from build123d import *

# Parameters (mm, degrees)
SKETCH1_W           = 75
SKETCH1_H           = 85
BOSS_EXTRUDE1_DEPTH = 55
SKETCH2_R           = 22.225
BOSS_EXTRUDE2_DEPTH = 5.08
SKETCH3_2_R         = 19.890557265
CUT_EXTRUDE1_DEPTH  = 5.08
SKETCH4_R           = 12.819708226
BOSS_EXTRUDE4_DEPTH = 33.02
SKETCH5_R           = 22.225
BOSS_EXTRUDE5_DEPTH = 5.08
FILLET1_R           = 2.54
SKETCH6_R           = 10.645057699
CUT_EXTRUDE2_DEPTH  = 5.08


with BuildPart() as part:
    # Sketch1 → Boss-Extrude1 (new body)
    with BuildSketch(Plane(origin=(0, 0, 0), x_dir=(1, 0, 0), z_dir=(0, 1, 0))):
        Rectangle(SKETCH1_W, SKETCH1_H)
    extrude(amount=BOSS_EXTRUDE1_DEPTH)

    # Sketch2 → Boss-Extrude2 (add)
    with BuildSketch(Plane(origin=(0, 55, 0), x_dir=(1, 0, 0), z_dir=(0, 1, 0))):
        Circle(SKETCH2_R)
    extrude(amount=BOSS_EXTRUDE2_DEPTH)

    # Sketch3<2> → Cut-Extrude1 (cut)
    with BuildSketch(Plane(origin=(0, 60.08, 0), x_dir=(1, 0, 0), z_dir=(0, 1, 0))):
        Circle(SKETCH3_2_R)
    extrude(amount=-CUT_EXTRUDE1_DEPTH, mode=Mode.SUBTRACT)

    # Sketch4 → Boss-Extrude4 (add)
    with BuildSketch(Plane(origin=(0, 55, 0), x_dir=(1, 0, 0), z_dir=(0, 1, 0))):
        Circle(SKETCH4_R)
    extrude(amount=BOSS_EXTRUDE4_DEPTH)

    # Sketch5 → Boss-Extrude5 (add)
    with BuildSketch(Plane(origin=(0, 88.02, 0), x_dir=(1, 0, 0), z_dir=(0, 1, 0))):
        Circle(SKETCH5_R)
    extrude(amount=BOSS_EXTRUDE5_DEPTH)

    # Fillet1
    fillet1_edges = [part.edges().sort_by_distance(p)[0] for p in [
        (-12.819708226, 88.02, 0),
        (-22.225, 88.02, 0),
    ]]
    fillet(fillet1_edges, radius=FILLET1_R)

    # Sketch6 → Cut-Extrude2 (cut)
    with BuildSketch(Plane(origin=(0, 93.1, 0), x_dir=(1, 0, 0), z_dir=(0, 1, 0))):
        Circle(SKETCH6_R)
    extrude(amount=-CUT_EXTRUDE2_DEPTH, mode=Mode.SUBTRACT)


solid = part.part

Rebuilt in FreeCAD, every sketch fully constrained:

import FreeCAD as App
import Part
import Sketcher
from FreeCAD import Vector
Q = App.Units.Quantity


def edges_at(feature, points):
    """Names of the edges that pass closest to the given points."""
    edges = feature.Shape.Edges
    near = lambda p: min(range(len(edges)), key=lambda i: edges[i].distToShape(Part.Vertex(*p))[0])
    return sorted({f"Edge{near(p) + 1}" for p in points})

doc = App.newDocument("Part")
body = doc.addObject("PartDesign::Body", "Body")

# Sketch on XZ plane
sketch1 = body.newObject("Sketcher::SketchObject", "Sketch")
sketch1.AttachmentSupport = (doc.getObject("XZ_Plane"), [""])
sketch1.MapMode = "FlatFace"
sketch1.addGeometry(Part.LineSegment(Vector(-37.5, -42.5, 0), Vector(-37.5, 42.5, 0)), False)
sketch1.addGeometry(Part.LineSegment(Vector(-37.5, 42.5, 0), Vector(37.5, 42.5, 0)), False)
sketch1.addGeometry(Part.LineSegment(Vector(37.5, 42.5, 0), Vector(37.5, -42.5, 0)), False)
sketch1.addGeometry(Part.LineSegment(Vector(37.5, -42.5, 0), Vector(-37.5, -42.5, 0)), False)
sketch1.addConstraint(Sketcher.Constraint("Coincident", 0, 2, 1, 1))
sketch1.addConstraint(Sketcher.Constraint("Coincident", 1, 2, 2, 1))
sketch1.addConstraint(Sketcher.Constraint("Coincident", 2, 2, 3, 1))
sketch1.addConstraint(Sketcher.Constraint("Coincident", 3, 2, 0, 1))
sketch1.addConstraint(Sketcher.Constraint("Vertical", 0))
sketch1.addConstraint(Sketcher.Constraint("Horizontal", 1))
sketch1.addConstraint(Sketcher.Constraint("Vertical", 2))
sketch1.addConstraint(Sketcher.Constraint("Horizontal", 3))
sketch1.addConstraint(Sketcher.Constraint("Symmetric", 0, 2, 2, 2, -1, 1))
sketch1.addConstraint(Sketcher.Constraint("DistanceX", 1, 1, 1, 2, Q("75 mm")))
sketch1.addConstraint(Sketcher.Constraint("DistanceY", 0, 1, 0, 2, Q("85 mm")))
pad1 = body.newObject("PartDesign::Pad", "Pad")
pad1.Profile = sketch1
pad1.Length = 55
pad1.Reversed = True

# Sketch on XZ plane
sketch2 = body.newObject("Sketcher::SketchObject", "Sketch001")
sketch2.AttachmentSupport = (doc.getObject("XZ_Plane"), [""])
sketch2.MapMode = "FlatFace"
sketch2.AttachmentOffset = App.Placement(Vector(0, 0, -55), App.Rotation())
sketch2.addGeometry(Part.Circle(Vector(0, 0, 0), Vector(0, 0, 1), 22.225), False)
sketch2.addConstraint(Sketcher.Constraint("Coincident", 0, 3, -1, 1))
sketch2.addConstraint(Sketcher.Constraint("Diameter", 0, Q("1.75 in")))
pad2 = body.newObject("PartDesign::Pad", "Pad001")
pad2.Profile = sketch2
pad2.Length = Q("0.2 in")
pad2.Reversed = True

# Sketch on XZ plane
sketch3 = body.newObject("Sketcher::SketchObject", "Sketch002")
sketch3.AttachmentSupport = (doc.getObject("XZ_Plane"), [""])
sketch3.MapMode = "FlatFace"
sketch3.AttachmentOffset = App.Placement(Vector(0, 0, -60.08), App.Rotation())
sketch3.addGeometry(Part.Circle(Vector(0, 0, 0), Vector(0, 0, 1), 19.890557), False)
sketch3.addConstraint(Sketcher.Constraint("Coincident", 0, 3, -1, 1))
sketch3.addConstraint(Sketcher.Constraint("Diameter", 0, Q("39.781115 mm")))
pocket1 = body.newObject("PartDesign::Pocket", "Pocket")
pocket1.Profile = sketch3
pocket1.Length = Q("0.2 in")
pocket1.Reversed = True

# Sketch on XZ plane
sketch4 = body.newObject("Sketcher::SketchObject", "Sketch003")
sketch4.AttachmentSupport = (doc.getObject("XZ_Plane"), [""])
sketch4.MapMode = "FlatFace"
sketch4.AttachmentOffset = App.Placement(Vector(0, 0, -55), App.Rotation())
sketch4.addGeometry(Part.Circle(Vector(0, 0, 0), Vector(0, 0, 1), 12.819708), False)
sketch4.addConstraint(Sketcher.Constraint("Coincident", 0, 3, -1, 1))
sketch4.addConstraint(Sketcher.Constraint("Diameter", 0, Q("25.639416 mm")))
pad3 = body.newObject("PartDesign::Pad", "Pad002")
pad3.Profile = sketch4
pad3.Length = Q("1.3 in")
pad3.Reversed = True

# Sketch on XZ plane
sketch5 = body.newObject("Sketcher::SketchObject", "Sketch004")
sketch5.AttachmentSupport = (doc.getObject("XZ_Plane"), [""])
sketch5.MapMode = "FlatFace"
sketch5.AttachmentOffset = App.Placement(Vector(0, 0, -88.02), App.Rotation())
sketch5.addGeometry(Part.Circle(Vector(0, 0, 0), Vector(0, 0, 1), 22.225), False)
sketch5.addConstraint(Sketcher.Constraint("Coincident", 0, 3, -1, 1))
sketch5.addConstraint(Sketcher.Constraint("Diameter", 0, Q("1.75 in")))
pad4 = body.newObject("PartDesign::Pad", "Pad003")
pad4.Profile = sketch5
pad4.Length = Q("0.2 in")
pad4.Reversed = True
doc.recompute()

fillet = body.newObject("PartDesign::Fillet", "Fillet")
fillet.Base = (pad4, edges_at(pad4, [(-12.82, 88.02, 0), (-22.225, 88.02, 0)]))
fillet.Radius = Q("0.1 in")

# Sketch on XZ plane
sketch6 = body.newObject("Sketcher::SketchObject", "Sketch005")
sketch6.AttachmentSupport = (doc.getObject("XZ_Plane"), [""])
sketch6.MapMode = "FlatFace"
sketch6.AttachmentOffset = App.Placement(Vector(0, 0, -93.1), App.Rotation())
sketch6.addGeometry(Part.Circle(Vector(0, 0, 0), Vector(0, 0, 1), 10.645058), False)
sketch6.addConstraint(Sketcher.Constraint("Coincident", 0, 3, -1, 1))
sketch6.addConstraint(Sketcher.Constraint("Diameter", 0, Q("21.290115 mm")))
pocket2 = body.newObject("PartDesign::Pocket", "Pocket001")
pocket2.Profile = sketch6
pocket2.Length = Q("0.2 in")
pocket2.Reversed = True

doc.recompute()
